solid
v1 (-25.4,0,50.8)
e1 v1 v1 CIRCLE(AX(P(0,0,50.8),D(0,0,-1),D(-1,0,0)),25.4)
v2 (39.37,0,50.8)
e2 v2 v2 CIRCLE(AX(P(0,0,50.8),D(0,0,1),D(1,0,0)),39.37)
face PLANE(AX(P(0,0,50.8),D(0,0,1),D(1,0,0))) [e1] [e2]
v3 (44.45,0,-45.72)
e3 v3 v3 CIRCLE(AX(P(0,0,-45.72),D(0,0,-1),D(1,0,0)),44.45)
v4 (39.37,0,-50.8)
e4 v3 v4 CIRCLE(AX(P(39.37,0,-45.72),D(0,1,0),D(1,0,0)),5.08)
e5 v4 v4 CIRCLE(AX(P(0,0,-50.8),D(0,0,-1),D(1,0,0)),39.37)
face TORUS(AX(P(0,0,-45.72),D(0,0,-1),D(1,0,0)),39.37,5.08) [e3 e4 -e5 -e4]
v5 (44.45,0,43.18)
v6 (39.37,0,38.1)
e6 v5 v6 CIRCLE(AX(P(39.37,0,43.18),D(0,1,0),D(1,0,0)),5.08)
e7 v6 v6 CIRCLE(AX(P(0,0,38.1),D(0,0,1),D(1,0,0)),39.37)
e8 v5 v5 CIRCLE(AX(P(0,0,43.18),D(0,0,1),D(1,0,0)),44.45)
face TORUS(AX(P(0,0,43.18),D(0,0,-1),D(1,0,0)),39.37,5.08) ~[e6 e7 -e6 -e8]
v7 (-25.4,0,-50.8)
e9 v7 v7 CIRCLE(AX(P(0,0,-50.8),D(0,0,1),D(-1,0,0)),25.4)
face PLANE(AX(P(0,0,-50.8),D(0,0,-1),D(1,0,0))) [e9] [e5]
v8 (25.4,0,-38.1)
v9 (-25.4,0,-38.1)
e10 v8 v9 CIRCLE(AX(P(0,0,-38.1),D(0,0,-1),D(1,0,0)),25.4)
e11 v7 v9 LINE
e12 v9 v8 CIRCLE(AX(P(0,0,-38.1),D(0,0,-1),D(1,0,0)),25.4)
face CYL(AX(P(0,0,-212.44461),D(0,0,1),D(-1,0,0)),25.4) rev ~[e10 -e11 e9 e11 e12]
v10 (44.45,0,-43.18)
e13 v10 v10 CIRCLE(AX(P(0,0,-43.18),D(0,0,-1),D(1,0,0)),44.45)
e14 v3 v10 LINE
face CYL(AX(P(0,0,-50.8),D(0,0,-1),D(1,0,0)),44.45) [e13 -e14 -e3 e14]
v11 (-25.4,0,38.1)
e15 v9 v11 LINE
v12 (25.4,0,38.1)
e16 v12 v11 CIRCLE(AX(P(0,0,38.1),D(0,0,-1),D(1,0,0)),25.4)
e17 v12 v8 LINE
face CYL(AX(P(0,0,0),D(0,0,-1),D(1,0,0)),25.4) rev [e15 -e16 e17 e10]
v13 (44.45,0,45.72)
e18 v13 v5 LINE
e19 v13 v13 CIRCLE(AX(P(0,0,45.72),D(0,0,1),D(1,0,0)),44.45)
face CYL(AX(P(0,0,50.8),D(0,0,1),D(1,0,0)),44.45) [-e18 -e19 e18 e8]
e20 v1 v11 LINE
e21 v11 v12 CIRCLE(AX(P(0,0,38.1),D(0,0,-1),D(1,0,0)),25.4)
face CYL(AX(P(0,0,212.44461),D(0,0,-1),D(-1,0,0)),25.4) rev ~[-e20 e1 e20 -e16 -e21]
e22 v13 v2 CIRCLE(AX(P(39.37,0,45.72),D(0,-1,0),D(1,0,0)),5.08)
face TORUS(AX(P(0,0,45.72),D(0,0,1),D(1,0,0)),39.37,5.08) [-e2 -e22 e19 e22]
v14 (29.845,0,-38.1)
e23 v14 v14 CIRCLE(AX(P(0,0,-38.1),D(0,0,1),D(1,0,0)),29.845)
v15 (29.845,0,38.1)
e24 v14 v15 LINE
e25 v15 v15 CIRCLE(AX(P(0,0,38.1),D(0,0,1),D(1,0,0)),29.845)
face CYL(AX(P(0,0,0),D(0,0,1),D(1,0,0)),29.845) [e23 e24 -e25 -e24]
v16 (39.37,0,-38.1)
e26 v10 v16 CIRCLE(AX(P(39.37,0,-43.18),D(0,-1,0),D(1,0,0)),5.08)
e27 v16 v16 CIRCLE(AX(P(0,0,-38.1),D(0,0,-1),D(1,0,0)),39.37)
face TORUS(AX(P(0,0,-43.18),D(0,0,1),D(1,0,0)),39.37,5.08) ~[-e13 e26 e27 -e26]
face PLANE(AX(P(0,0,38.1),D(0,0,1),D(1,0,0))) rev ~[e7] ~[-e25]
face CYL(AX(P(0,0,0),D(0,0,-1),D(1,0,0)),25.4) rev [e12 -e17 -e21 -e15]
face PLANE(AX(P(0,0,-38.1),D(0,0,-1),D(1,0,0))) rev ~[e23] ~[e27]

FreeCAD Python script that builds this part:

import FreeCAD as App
import Part
import Sketcher

V = App.Vector
Q = App.Units.Quantity


def edges_at(feature, points):
    """Names of the edges that pass closest to the given points."""
    edges = feature.Shape.Edges
    near = lambda p: min(range(len(edges)), key=lambda i: edges[i].distToShape(Part.Vertex(*p))[0])
    return sorted({f"Edge{near(p) + 1}" for p in points})

doc = App.newDocument("Part")
params = doc.addObject("Spreadsheet::Sheet", "Params")
for row, (alias, value) in enumerate([
    ("sketch1_diameter", "2 in"),
    ("sketch1_diameter2", "2.35 in"),
    ("pad1_length", "4 in"),
    ("sketch2_diameter", "3.5 in"),
    ("pad2_length", "0.5 in"),
    ("fillet_radius", "0.2 in"),
    ("sketch3_diameter", "2 in"),
    ("hole_diameter", "2 in"),
    ("sketch4_diameter", "3.5 in"),
    ("pad3_length", "0.5 in"),
    ("fillet2_radius", "0.2 in"),
    ("sketch5_diameter", "2 in"),
    ("hole2_diameter", "2 in"),
], start=1):
    params.set(f"A{row}", alias)
    params.set(f"B{row}", "=" + value)
    params.setAlias(f"B{row}", alias)

body = doc.addObject("PartDesign::Body", "Body")

# Sketch on XY plane
sketch1 = body.newObject("Sketcher::SketchObject", "Sketch")
sketch1.AttachmentSupport = (doc.getObject("XY_Plane"), [""])
sketch1.MapMode = "FlatFace"
sketch1.addGeometry([
    Part.Circle(V(0, 0, 0), V(0, 0, 1), 30),
    Part.Circle(V(0, 0, 0), V(0, 0, 1), 25),
], False)
sketch1.addConstraint([
    Sketcher.Constraint("Coincident", 0, 3, -1, 1),
    Sketcher.Constraint("Coincident", 1, 3, -1, 1),
    Sketcher.Constraint("Diameter", 1, Q("2 in")),
    Sketcher.Constraint("Diameter", 0, Q("2.35 in")),
])
sketch1.setExpression("Constraints[2]", "Params.sketch1_diameter")
sketch1.setExpression("Constraints[3]", "Params.sketch1_diameter2")
pad1 = body.newObject("PartDesign::Pad", "Pad")
pad1.Profile = sketch1
pad1.setExpression("Length", "Params.pad1_length")
pad1.Midplane = True

# Sketch on XY plane
sketch2 = body.newObject("Sketcher::SketchObject", "Sketch001")
sketch2.AttachmentSupport = (doc.getObject("XY_Plane"), [""])
sketch2.MapMode = "FlatFace"
sketch2.AttachmentOffset = App.Placement(V(0, 0, -2 * 25.4), App.Rotation())
sketch2.addGeometry(Part.Circle(V(0, 0, 0), V(0, 0, 1), 44), False)
sketch2.addConstraint([
    Sketcher.Constraint("Coincident", 0, 3, -1, 1),
    Sketcher.Constraint("Diameter", 0, Q("3.5 in")),
])
sketch2.setExpression("Constraints[1]", "Params.sketch2_diameter")
pad2 = body.newObject("PartDesign::Pad", "Pad001")
pad2.Profile = sketch2
pad2.setExpression("Length", "Params.pad2_length")
doc.recompute()

fillet = body.newObject("PartDesign::Fillet", "Fillet")
fillet.Base = (pad2, edges_at(pad2, [(44.45, 0, -44.45), (-44.45, 0, -50.8), (-44.45, 0, -38.1)]))
fillet.setExpression("Radius", "Params.fillet_radius")

# Sketch on XY plane
sketch3 = body.newObject("Sketcher::SketchObject", "Sketch002")
sketch3.AttachmentSupport = (doc.getObject("XY_Plane"), [""])
sketch3.MapMode = "FlatFace"
sketch3.AttachmentOffset = App.Placement(V(0, 0, -2 * 25.4), App.Rotation())
sketch3.addGeometry(Part.Circle(V(0, 0, 0), V(0, 0, 1), 25), False)
sketch3.addConstraint([
    Sketcher.Constraint("Coincident", 0, 3, -1, 1),
    Sketcher.Constraint("Diameter", 0, Q("2 in")),
])
sketch3.setExpression("Constraints[1]", "Params.sketch3_diameter")
doc.recompute()
hole = body.newObject("PartDesign::Hole", "Hole")
hole.Profile = sketch3
hole.ThreadType = "None"
hole.setExpression("Diameter", "Params.hole_diameter")
hole.DepthType = "ThroughAll"
hole.Reversed = True

# Sketch on XY plane
sketch4 = body.newObject("Sketcher::SketchObject", "Sketch003")
sketch4.AttachmentSupport = (doc.getObject("XY_Plane"), [""])
sketch4.MapMode = "FlatFace"
sketch4.AttachmentOffset = App.Placement(V(0, 0, 2 * 25.4), App.Rotation())
sketch4.addGeometry(Part.Circle(V(0, 0, 0), V(0, 0, 1), 44), False)
sketch4.addConstraint([
    Sketcher.Constraint("Coincident", 0, 3, -1, 1),
    Sketcher.Constraint("Diameter", 0, Q("3.5 in")),
])
sketch4.setExpression("Constraints[1]", "Params.sketch4_diameter")
pad3 = body.newObject("PartDesign::Pad", "Pad002")
pad3.Profile = sketch4
pad3.setExpression("Length", "Params.pad3_length")
pad3.Reversed = True
doc.recompute()

fillet2 = body.newObject("PartDesign::Fillet", "Fillet001")
fillet2.Base = (pad3, edges_at(pad3, [(44.45, 0, 44.45), (-44.45, 0, 50.8), (-44.45, 0, 38.1)]))
fillet2.setExpression("Radius", "Params.fillet2_radius")

# Sketch on XY plane
sketch5 = body.newObject("Sketcher::SketchObject", "Sketch004")
sketch5.AttachmentSupport = (doc.getObject("XY_Plane"), [""])
sketch5.MapMode = "FlatFace"
sketch5.AttachmentOffset = App.Placement(V(0, 0, 2 * 25.4), App.Rotation())
sketch5.addGeometry(Part.Circle(V(0, 0, 0), V(0, 0, 1), 25), False)
sketch5.addConstraint([
    Sketcher.Constraint("Coincident", 0, 3, -1, 1),
    Sketcher.Constraint("Diameter", 0, Q("2 in")),
])
sketch5.setExpression("Constraints[1]", "Params.sketch5_diameter")
doc.recompute()
hole2 = body.newObject("PartDesign::Hole", "Hole001")
hole2.Profile = sketch5
hole2.ThreadType = "None"
hole2.setExpression("Diameter", "Params.hole2_diameter")
hole2.DepthType = "ThroughAll"

doc.recompute()
